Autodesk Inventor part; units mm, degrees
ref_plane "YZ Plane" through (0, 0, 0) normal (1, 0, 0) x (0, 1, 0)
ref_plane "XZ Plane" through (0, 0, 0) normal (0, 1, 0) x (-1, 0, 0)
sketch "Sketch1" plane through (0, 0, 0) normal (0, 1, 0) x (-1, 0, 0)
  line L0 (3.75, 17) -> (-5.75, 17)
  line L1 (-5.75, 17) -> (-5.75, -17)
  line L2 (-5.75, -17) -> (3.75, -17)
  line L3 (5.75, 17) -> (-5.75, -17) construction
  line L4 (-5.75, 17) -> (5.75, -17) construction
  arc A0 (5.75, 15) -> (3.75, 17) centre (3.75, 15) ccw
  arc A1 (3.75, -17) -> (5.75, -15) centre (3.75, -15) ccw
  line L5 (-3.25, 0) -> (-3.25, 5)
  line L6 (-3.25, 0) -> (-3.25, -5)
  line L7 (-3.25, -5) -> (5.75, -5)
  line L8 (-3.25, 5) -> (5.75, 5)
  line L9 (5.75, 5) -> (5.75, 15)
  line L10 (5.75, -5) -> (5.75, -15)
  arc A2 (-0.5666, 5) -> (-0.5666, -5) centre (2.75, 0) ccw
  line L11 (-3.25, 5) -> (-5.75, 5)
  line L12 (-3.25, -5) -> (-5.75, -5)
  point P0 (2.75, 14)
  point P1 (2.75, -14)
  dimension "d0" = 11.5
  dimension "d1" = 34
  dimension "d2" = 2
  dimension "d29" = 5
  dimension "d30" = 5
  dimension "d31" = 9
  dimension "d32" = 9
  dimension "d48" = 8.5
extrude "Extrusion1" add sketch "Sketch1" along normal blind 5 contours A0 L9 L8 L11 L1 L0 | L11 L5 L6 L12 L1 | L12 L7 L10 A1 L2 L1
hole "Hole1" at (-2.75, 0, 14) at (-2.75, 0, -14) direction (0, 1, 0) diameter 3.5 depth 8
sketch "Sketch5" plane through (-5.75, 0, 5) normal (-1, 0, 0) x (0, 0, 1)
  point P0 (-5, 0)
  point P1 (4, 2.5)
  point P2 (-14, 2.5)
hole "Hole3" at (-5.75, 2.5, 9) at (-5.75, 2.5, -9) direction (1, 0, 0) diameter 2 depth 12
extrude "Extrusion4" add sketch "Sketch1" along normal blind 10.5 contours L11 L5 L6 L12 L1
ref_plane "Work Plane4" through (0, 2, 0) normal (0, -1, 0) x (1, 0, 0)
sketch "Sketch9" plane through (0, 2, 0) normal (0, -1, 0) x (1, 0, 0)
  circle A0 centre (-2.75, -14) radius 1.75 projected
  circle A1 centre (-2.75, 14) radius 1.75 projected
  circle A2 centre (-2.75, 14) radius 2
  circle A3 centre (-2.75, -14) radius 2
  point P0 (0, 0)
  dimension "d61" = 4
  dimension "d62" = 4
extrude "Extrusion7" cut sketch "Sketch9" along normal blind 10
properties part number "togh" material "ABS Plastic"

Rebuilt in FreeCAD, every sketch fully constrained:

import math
import FreeCAD as App
import Part
import Sketcher
from FreeCAD import Vector

doc = App.newDocument("Part")
body = doc.addObject("PartDesign::Body", "Body")

# Sketch on XZ plane
sketch1 = body.newObject("Sketcher::SketchObject", "Sketch")
sketch1.AttachmentSupport = (doc.getObject("XZ_Plane"), [""])
sketch1.MapMode = "FlatFace"
sketch1.addGeometry([
    Part.ArcOfCircle(Part.Circle(Vector(-3.8, 15, 0), Vector(0, 0, 1), 2), math.radians(90), math.radians(180)),  # 0
    Part.LineSegment(Vector(-3.8, 17, 0), Vector(5.8, 17, 0)),  # 1
    Part.LineSegment(Vector(5.8, 17, 0), Vector(5.8, -17, 0)),  # 2
    Part.LineSegment(Vector(5.8, -17, 0), Vector(-3.8, -17, 0)),  # 3
    Part.ArcOfCircle(Part.Circle(Vector(-3.8, -15, 0), Vector(0, 0, 1), 2), math.radians(180), math.radians(270)),  # 4
    Part.LineSegment(Vector(-5.8, -15, 0), Vector(-5.8, -5, 0)),  # 5
    Part.LineSegment(Vector(-5.8, -5, 0), Vector(3.2, -5, 0)),  # 6
    Part.LineSegment(Vector(3.2, -5, 0), Vector(3.2, 5, 0)),  # 7
    Part.LineSegment(Vector(3.2, 5, 0), Vector(-5.8, 5, 0)),  # 8
    Part.LineSegment(Vector(-5.8, 5, 0), Vector(-5.8, 15, 0)),  # 9
], False)
sketch1.addConstraint([
    Sketcher.Constraint("Tangent", 0, 1, 1, 1),
    Sketcher.Constraint("Coincident", 1, 2, 2, 1),
    Sketcher.Constraint("Coincident", 2, 2, 3, 1),
    Sketcher.Constraint("Tangent", 3, 2, 4, 2),
    Sketcher.Constraint("Tangent", 4, 1, 5, 1),
    Sketcher.Constraint("Coincident", 5, 2, 6, 1),
    Sketcher.Constraint("Coincident", 6, 2, 7, 1),
    Sketcher.Constraint("Coincident", 7, 2, 8, 1),
    Sketcher.Constraint("Coincident", 8, 2, 9, 1),
    Sketcher.Constraint("Tangent", 9, 2, 0, 2),
    Sketcher.Constraint("Horizontal", 1),
    Sketcher.Constraint("Vertical", 2),
    Sketcher.Constraint("Horizontal", 3),
    Sketcher.Constraint("Vertical", 5),
    Sketcher.Constraint("Horizontal", 6),
    Sketcher.Constraint("Vertical", 7),
    Sketcher.Constraint("Horizontal", 8),
    Sketcher.Constraint("Vertical", 9),
    Sketcher.Constraint("Equal", 0, 4),
    Sketcher.Constraint("Symmetric", 0, 3, 4, 3, -1),
    Sketcher.Constraint("Equal", 5, 7),
    Sketcher.Constraint("Equal", 7, 9),
    Sketcher.Constraint("Radius", 0, 2.0),
    Sketcher.Constraint("DistanceX", 6, 1, 6, 2, 9.0),
    Sketcher.Constraint("DistanceY", 2, 2, 2, 1, 34.0),
    Sketcher.Constraint("DistanceX", 4, 1, 2, 2, 11.5),
    Sketcher.Constraint("DistanceX", 0, 3, -1, 1, 3.75),
])
pad1 = body.newObject("PartDesign::Pad", "Pad")
pad1.Profile = sketch1
pad1.Length = 5
pad1.Reversed = True

# Sketch on XZ plane
sketch2 = body.newObject("Sketcher::SketchObject", "Sketch001")
sketch2.AttachmentSupport = (doc.getObject("XZ_Plane"), [""])
sketch2.MapMode = "FlatFace"
sketch2.addGeometry([
    Part.Circle(Vector(-2.8, 14, 0), Vector(0, 0, 1), 1.8),
    Part.Circle(Vector(-2.8, -14, 0), Vector(0, 0, 1), 1.8),
], False)
sketch2.addConstraint([
    Sketcher.Constraint("Equal", 0, 1),
    Sketcher.Constraint("Symmetric", 0, 3, 1, 3, -1),
    Sketcher.Constraint("Diameter", 0, 3.5),
    Sketcher.Constraint("DistanceY", -1, 1, 0, 3, 14.0),
    Sketcher.Constraint("DistanceX", 0, 3, -1, 1, 2.75),
])
doc.recompute()
hole = body.newObject("PartDesign::Hole", "Hole")
hole.Profile = sketch2
hole.ThreadType = "None"
hole.Diameter = 3.5
hole.DepthType = "Dimension"
hole.Depth = 8
hole.DrillPoint = "Flat"

# Sketch on YZ plane
sketch3 = body.newObject("Sketcher::SketchObject", "Sketch002")
sketch3.AttachmentSupport = (doc.getObject("YZ_Plane"), [""])
sketch3.MapMode = "FlatFace"
sketch3.AttachmentOffset = App.Placement(Vector(0, 0, -5.75), App.Rotation())
sketch3.addGeometry([
    Part.Circle(Vector(2.5, 9, 0), Vector(0, 0, 1), 1),
    Part.Circle(Vector(2.5, -9, 0), Vector(0, 0, 1), 1),
], False)
sketch3.addConstraint([
    Sketcher.Constraint("Equal", 0, 1),
    Sketcher.Constraint("Symmetric", 0, 3, 1, 3, -1),
    Sketcher.Constraint("Diameter", 0, 2.0),
    Sketcher.Constraint("DistanceY", -1, 1, 0, 3, 9.0),
    Sketcher.Constraint("DistanceX", -1, 1, 0, 3, 2.5),
])
doc.recompute()
hole2 = body.newObject("PartDesign::Hole", "Hole001")
hole2.Profile = sketch3
hole2.ThreadType = "None"
hole2.Diameter = 2
hole2.DepthType = "Dimension"
hole2.Depth = 12
hole2.DrillPoint = "Flat"
hole2.Reversed = True

# Sketch on XZ plane
sketch4 = body.newObject("Sketcher::SketchObject", "Sketch003")
sketch4.AttachmentSupport = (doc.getObject("XZ_Plane"), [""])
sketch4.MapMode = "FlatFace"
sketch4.addGeometry([
    Part.LineSegment(Vector(3.2, 5, 0), Vector(5.8, 5, 0)),
    Part.LineSegment(Vector(5.8, 5, 0), Vector(5.8, -5, 0)),
    Part.LineSegment(Vector(5.8, -5, 0), Vector(3.2, -5, 0)),
    Part.LineSegment(Vector(3.2, -5, 0), Vector(3.2, 5, 0)),
], False)
sketch4.addConstraint([
    Sketcher.Constraint("Coincident", 0, 2, 1, 1),
    Sketcher.Constraint("Coincident", 1, 2, 2, 1),
    Sketcher.Constraint("Coincident", 2, 2, 3, 1),
    Sketcher.Constraint("Coincident", 3, 2, 0, 1),
    Sketcher.Constraint("Horizontal", 0),
    Sketcher.Constraint("Vertical", 1),
    Sketcher.Constraint("Horizontal", 2),
    Sketcher.Constraint("Vertical", 3),
    Sketcher.Constraint("DistanceY", -1, 1, 0, 2, 5.0),
    Sketcher.Constraint("DistanceY", 1, 2, -1, 1, 5.0),
    Sketcher.Constraint("DistanceX", 0, 1, 0, 2, 2.5),
    Sketcher.Constraint("DistanceX", -1, 1, 0, 2, 5.75),
])
pad2 = body.newObject("PartDesign::Pad", "Pad001")
pad2.Profile = sketch4
pad2.Length = 10.5
pad2.Reversed = True

# Sketch on XZ plane
sketch5 = body.newObject("Sketcher::SketchObject", "Sketch004")
sketch5.AttachmentSupport = (doc.getObject("XZ_Plane"), [""])
sketch5.MapMode = "FlatFace"
sketch5.AttachmentOffset = App.Placement(Vector(0, 0, -2), App.Rotation())
sketch5.addGeometry([
    Part.Circle(Vector(-2.8, 14, 0), Vector(0, 0, 1), 2),
    Part.Circle(Vector(-2.8, 14, 0), Vector(0, 0, 1), 1.8),
    Part.Circle(Vector(-2.8, -14, 0), Vector(0, 0, 1), 2),
    Part.Circle(Vector(-2.8, -14, 0), Vector(0, 0, 1), 1.8),
], False)
sketch5.addConstraint([
    Sketcher.Constraint("Coincident", 1, 3, 0, 3),
    Sketcher.Constraint("Coincident", 3, 3, 2, 3),
    Sketcher.Constraint("Equal", 0, 2),
    Sketcher.Constraint("Equal", 1, 3),
    Sketcher.Constraint("Symmetric", 0, 3, 2, 3, -1),
    Sketcher.Constraint("Diameter", 0, 4.0),
    Sketcher.Constraint("Diameter", 1, 3.5),
    Sketcher.Constraint("DistanceY", -1, 1, 0, 3, 14.0),
    Sketcher.Constraint("DistanceX", 0, 3, -1, 1, 2.75),
])
pocket1 = body.newObject("PartDesign::Pocket", "Pocket")
pocket1.Profile = sketch5
pocket1.Length = 10
pocket1.Reversed = True

doc.recompute()
